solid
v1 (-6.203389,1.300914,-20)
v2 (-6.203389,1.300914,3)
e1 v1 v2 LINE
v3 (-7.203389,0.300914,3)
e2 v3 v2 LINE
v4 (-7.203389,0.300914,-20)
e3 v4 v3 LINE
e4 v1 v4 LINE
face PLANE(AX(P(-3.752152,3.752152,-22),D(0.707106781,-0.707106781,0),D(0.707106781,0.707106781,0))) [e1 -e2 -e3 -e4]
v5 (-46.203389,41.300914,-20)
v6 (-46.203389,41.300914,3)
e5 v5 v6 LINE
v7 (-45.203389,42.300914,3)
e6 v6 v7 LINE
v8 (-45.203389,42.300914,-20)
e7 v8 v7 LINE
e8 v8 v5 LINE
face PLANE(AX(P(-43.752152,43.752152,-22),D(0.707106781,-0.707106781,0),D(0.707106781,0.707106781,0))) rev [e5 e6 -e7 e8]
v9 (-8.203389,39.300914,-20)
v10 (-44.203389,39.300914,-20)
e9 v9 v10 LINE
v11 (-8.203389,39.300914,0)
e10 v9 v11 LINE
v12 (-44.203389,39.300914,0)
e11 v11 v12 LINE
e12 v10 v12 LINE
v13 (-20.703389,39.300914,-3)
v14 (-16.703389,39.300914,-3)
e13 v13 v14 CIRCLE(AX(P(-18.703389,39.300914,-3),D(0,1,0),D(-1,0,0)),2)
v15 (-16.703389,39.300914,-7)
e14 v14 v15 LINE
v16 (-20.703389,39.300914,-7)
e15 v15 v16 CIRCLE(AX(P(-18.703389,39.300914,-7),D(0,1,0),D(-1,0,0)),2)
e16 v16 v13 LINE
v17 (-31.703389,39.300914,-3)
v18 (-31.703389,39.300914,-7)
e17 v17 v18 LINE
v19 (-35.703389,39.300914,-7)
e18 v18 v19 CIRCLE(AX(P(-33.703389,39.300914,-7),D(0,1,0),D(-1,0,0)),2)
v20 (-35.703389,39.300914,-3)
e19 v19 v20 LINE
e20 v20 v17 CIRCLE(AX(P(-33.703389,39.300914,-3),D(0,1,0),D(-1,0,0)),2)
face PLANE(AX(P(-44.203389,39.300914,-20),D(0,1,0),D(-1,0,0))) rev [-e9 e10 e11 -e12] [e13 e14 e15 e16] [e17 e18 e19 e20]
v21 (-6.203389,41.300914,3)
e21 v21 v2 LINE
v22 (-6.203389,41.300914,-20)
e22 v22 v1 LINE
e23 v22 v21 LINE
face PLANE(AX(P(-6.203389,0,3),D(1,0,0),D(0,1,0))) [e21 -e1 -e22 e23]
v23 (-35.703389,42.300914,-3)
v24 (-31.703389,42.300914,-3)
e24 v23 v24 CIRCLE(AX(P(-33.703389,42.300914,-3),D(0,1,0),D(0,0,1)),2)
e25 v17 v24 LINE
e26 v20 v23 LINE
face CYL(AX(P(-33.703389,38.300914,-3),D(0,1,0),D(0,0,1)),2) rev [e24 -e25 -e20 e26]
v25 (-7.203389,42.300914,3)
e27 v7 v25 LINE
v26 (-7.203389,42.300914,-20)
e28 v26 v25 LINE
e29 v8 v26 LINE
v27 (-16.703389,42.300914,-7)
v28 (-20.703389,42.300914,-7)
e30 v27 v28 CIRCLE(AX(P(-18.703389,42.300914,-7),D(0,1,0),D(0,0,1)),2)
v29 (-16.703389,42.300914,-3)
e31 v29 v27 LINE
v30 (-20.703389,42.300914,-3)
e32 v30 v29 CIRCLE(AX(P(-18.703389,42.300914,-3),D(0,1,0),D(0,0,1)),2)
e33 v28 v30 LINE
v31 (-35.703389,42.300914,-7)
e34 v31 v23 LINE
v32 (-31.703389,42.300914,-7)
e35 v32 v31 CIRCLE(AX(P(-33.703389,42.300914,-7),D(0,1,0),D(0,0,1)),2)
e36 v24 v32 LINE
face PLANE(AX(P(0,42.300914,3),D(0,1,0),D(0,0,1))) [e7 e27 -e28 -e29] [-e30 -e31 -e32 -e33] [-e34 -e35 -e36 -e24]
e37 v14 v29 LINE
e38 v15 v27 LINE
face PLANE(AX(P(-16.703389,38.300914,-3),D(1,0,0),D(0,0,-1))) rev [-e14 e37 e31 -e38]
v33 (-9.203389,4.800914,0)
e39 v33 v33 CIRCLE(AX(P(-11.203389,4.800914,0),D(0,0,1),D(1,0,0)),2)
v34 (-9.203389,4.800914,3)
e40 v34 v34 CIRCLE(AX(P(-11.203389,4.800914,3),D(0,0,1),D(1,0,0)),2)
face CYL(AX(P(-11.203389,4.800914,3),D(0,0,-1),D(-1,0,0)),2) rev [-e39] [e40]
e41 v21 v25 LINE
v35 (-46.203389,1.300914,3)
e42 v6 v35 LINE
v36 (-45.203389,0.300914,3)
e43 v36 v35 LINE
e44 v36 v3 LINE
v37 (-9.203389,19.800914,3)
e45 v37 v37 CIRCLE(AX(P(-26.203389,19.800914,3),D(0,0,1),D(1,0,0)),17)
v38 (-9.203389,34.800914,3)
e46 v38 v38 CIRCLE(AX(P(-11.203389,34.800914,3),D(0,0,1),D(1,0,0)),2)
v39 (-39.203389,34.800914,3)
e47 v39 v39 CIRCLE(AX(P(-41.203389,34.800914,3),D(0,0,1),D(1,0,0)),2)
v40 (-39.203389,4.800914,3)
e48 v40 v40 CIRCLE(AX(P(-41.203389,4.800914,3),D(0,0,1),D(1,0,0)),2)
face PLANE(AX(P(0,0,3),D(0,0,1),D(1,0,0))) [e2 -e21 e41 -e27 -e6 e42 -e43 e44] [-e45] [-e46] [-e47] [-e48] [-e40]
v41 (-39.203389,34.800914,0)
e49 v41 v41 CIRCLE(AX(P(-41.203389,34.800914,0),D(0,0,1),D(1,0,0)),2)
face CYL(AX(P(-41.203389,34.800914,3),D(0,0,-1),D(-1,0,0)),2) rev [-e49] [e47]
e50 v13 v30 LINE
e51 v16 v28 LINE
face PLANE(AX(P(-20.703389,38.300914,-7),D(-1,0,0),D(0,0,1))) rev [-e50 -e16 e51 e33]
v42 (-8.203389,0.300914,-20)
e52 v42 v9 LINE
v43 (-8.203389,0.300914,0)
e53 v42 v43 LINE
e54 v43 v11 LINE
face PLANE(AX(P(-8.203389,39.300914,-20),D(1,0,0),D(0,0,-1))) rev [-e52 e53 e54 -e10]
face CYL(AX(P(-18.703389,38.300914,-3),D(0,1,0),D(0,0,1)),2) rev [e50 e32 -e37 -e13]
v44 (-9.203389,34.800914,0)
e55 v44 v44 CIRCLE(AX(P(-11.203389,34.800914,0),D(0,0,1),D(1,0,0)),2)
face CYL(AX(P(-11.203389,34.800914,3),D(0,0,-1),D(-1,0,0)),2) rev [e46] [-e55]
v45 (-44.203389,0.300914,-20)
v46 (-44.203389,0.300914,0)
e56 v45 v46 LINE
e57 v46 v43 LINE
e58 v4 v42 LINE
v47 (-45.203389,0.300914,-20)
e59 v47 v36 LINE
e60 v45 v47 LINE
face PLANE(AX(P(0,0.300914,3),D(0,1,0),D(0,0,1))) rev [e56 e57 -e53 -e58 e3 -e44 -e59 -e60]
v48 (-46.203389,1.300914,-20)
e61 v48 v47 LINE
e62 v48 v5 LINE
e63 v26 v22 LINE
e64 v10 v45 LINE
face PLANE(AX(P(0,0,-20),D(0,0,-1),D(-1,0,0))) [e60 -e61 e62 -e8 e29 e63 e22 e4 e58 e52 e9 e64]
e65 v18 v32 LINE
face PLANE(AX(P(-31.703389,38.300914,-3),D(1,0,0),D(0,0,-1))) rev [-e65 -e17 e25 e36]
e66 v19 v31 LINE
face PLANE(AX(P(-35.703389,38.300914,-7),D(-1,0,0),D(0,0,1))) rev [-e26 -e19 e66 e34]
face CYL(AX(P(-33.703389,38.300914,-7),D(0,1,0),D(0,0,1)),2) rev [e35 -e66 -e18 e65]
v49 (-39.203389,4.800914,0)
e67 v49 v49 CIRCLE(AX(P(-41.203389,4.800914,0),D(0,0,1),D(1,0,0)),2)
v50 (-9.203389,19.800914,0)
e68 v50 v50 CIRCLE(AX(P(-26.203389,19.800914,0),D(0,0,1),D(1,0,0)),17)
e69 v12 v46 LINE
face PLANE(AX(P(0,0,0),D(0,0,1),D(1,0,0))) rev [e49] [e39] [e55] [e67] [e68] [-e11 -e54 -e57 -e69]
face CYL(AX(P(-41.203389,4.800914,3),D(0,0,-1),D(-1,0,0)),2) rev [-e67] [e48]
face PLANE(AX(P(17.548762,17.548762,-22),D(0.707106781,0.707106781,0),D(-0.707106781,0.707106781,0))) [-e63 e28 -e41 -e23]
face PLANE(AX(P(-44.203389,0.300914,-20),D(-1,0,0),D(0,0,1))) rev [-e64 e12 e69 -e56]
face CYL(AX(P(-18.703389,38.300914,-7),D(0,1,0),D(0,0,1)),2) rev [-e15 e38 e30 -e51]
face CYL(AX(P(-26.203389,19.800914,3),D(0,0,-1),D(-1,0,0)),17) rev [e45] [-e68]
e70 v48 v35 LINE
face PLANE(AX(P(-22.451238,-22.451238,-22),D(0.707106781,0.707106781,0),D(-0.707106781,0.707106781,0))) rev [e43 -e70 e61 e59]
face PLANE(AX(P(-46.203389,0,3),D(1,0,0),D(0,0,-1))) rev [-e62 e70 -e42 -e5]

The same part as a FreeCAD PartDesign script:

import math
import FreeCAD as App
import Part
import Sketcher
from FreeCAD import Vector
Q = App.Units.Quantity

doc = App.newDocument("Part")
body = doc.addObject("PartDesign::Body", "Body")

# Sketch on XY plane
sketch1 = body.newObject("Sketcher::SketchObject", "Sketch")
sketch1.AttachmentSupport = (doc.getObject("XY_Plane"), [""])
sketch1.MapMode = "FlatFace"
sketch1.addGeometry([
    Part.LineSegment(Vector(-46.2, 42.3, 0), Vector(-46.2, 0.3, 0)),  # 0
    Part.LineSegment(Vector(-46.2, 0.3, 0), Vector(-6.2, 0.3, 0)),  # 1
    Part.LineSegment(Vector(-6.2, 0.3, 0), Vector(-6.2, 42.3, 0)),  # 2
    Part.LineSegment(Vector(-6.2, 42.3, 0), Vector(-46.2, 42.3, 0)),  # 3
    Part.Circle(Vector(-41.2, 4.8, 0), Vector(0, 0, 1), 2),  # 4
    Part.Circle(Vector(-11.2, 4.8, 0), Vector(0, 0, 1), 2),  # 5
    Part.Circle(Vector(-41.2, 34.8, 0), Vector(0, 0, 1), 2),  # 6
    Part.Circle(Vector(-26.2, 19.8, 0), Vector(0, 0, 1), 17),  # 7
    Part.Circle(Vector(-11.2, 34.8, 0), Vector(0, 0, 1), 2),  # 8
], False)
sketch1.addConstraint([
    Sketcher.Constraint("Coincident", 0, 2, 1, 1),
    Sketcher.Constraint("Coincident", 1, 2, 2, 1),
    Sketcher.Constraint("Coincident", 2, 2, 3, 1),
    Sketcher.Constraint("Coincident", 3, 2, 0, 1),
    Sketcher.Constraint("Vertical", 0),
    Sketcher.Constraint("Horizontal", 1),
    Sketcher.Constraint("Vertical", 2),
    Sketcher.Constraint("Horizontal", 3),
    Sketcher.Constraint("Equal", 4, 5),
    Sketcher.Constraint("Equal", 5, 6),
    Sketcher.Constraint("Equal", 6, 8),
    Sketcher.Constraint("Horizontal", 4, 3, 5, 3),
    Sketcher.Constraint("Horizontal", 6, 3, 8, 3),
    Sketcher.Constraint("Vertical", 4, 3, 6, 3),
    Sketcher.Constraint("Vertical", 5, 3, 8, 3),
    Sketcher.Constraint("Diameter", 4, Q("4 mm")),
    Sketcher.Constraint("Diameter", 7, Q("34 mm")),
    Sketcher.Constraint("DistanceX", 1, 1, 1, 2, Q("40 mm")),
    Sketcher.Constraint("DistanceY", 0, 2, 0, 1, Q("42 mm")),
    Sketcher.Constraint("DistanceX", 4, 3, 5, 3, Q("30 mm")),
    Sketcher.Constraint("DistanceY", 4, 3, 6, 3, Q("30 mm")),
    Sketcher.Constraint("DistanceX", 6, 3, 7, 3, Q("15 mm")),
    Sketcher.Constraint("DistanceY", 7, 3, 6, 3, Q("15 mm")),
    Sketcher.Constraint("DistanceX", 0, 2, 4, 3, Q("5 mm")),
    Sketcher.Constraint("DistanceY", 0, 2, 4, 3, Q("4.5 mm")),
    Sketcher.Constraint("DistanceX", 4, 3, -1, 1, Q("41.203389 mm")),
    Sketcher.Constraint("DistanceY", -1, 1, 4, 3, Q("4.800914 mm")),
])
pad1 = body.newObject("PartDesign::Pad", "Pad")
pad1.Profile = sketch1
pad1.Length = 3

# Sketch on XY plane
sketch2 = body.newObject("Sketcher::SketchObject", "Sketch001")
sketch2.AttachmentSupport = (doc.getObject("XY_Plane"), [""])
sketch2.MapMode = "FlatFace"
sketch2.addGeometry([
    Part.LineSegment(Vector(-46.2, 42.3, 0), Vector(-6.2, 42.3, 0)),  # 0
    Part.LineSegment(Vector(-6.2, 42.3, 0), Vector(-6.2, 0.3, 0)),  # 1
    Part.LineSegment(Vector(-6.2, 0.3, 0), Vector(-8.2, 0.3, 0)),  # 2
    Part.LineSegment(Vector(-8.2, 0.3, 0), Vector(-8.2, 39.3, 0)),  # 3
    Part.LineSegment(Vector(-8.2, 39.3, 0), Vector(-44.2, 39.3, 0)),  # 4
    Part.LineSegment(Vector(-44.2, 39.3, 0), Vector(-44.2, 0.3, 0)),  # 5
    Part.LineSegment(Vector(-44.2, 0.3, 0), Vector(-46.2, 0.3, 0)),  # 6
    Part.LineSegment(Vector(-46.2, 0.3, 0), Vector(-46.2, 42.3, 0)),  # 7
], False)
sketch2.addConstraint([
    Sketcher.Constraint("Coincident", 0, 2, 1, 1),
    Sketcher.Constraint("Coincident", 1, 2, 2, 1),
    Sketcher.Constraint("Coincident", 2, 2, 3, 1),
    Sketcher.Constraint("Coincident", 3, 2, 4, 1),
    Sketcher.Constraint("Coincident", 4, 2, 5, 1),
    Sketcher.Constraint("Coincident", 5, 2, 6, 1),
    Sketcher.Constraint("Coincident", 6, 2, 7, 1),
    Sketcher.Constraint("Coincident", 7, 2, 0, 1),
    Sketcher.Constraint("Horizontal", 0),
    Sketcher.Constraint("Vertical", 1),
    Sketcher.Constraint("Horizontal", 2),
    Sketcher.Constraint("Vertical", 3),
    Sketcher.Constraint("Horizontal", 4),
    Sketcher.Constraint("Vertical", 5),
    Sketcher.Constraint("Horizontal", 6),
    Sketcher.Constraint("Vertical", 7),
    Sketcher.Constraint("Horizontal", 2, 2, 5, 2),
    Sketcher.Constraint("Equal", 2, 6),
    Sketcher.Constraint("DistanceX", 0, 1, 0, 2, Q("40 mm")),
    Sketcher.Constraint("DistanceX", 2, 2, 2, 1, Q("2 mm")),
    Sketcher.Constraint("DistanceY", 1, 2, 1, 1, Q("42 mm")),
    Sketcher.Constraint("DistanceY", 3, 1, 3, 2, Q("39 mm")),
    Sketcher.Constraint("DistanceX", 0, 2, -1, 1, Q("6.203389 mm")),
    Sketcher.Constraint("DistanceY", -1, 1, 0, 2, Q("42.300914 mm")),
])
pad2 = body.newObject("PartDesign::Pad", "Pad001")
pad2.Profile = sketch2
pad2.Length = 20
pad2.Reversed = True

# Sketch on XY plane
sketch3 = body.newObject("Sketcher::SketchObject", "Sketch002")
sketch3.AttachmentSupport = (doc.getObject("XY_Plane"), [""])
sketch3.MapMode = "FlatFace"
sketch3.AttachmentOffset = App.Placement(Vector(0, 0, 3), App.Rotation())
sketch3.addGeometry([
    Part.LineSegment(Vector(-45.2, 42.3, 0), Vector(-46.2, 42.3, 0)),  # 0
    Part.LineSegment(Vector(-46.2, 42.3, 0), Vector(-46.2, 41.3, 0)),  # 1
    Part.LineSegment(Vector(-46.2, 41.3, 0), Vector(-45.2, 42.3, 0)),  # 2
    Part.LineSegment(Vector(-6.2, 42.3, 0), Vector(-7.2, 42.3, 0)),  # 3
    Part.LineSegment(Vector(-7.2, 42.3, 0), Vector(-6.2, 41.3, 0)),  # 4
    Part.LineSegment(Vector(-6.2, 41.3, 0), Vector(-6.2, 42.3, 0)),  # 5
    Part.LineSegment(Vector(-45.2, 0.3, 0), Vector(-46.2, 1.3, 0)),  # 6
    Part.LineSegment(Vector(-46.2, 1.3, 0), Vector(-46.2, 0.3, 0)),  # 7
    Part.LineSegment(Vector(-46.2, 0.3, 0), Vector(-45.2, 0.3, 0)),  # 8
    Part.LineSegment(Vector(-6.2, 0.3, 0), Vector(-6.2, 1.3, 0)),  # 9
    Part.LineSegment(Vector(-6.2, 1.3, 0), Vector(-7.2, 0.3, 0)),  # 10
    Part.LineSegment(Vector(-7.2, 0.3, 0), Vector(-6.2, 0.3, 0)),  # 11
], False)
sketch3.addConstraint([
    Sketcher.Constraint("Coincident", 0, 2, 1, 1),
    Sketcher.Constraint("Coincident", 1, 2, 2, 1),
    Sketcher.Constraint("Coincident", 2, 2, 0, 1),
    Sketcher.Constraint("Coincident", 3, 2, 4, 1),
    Sketcher.Constraint("Coincident", 4, 2, 5, 1),
    Sketcher.Constraint("Coincident", 5, 2, 3, 1),
    Sketcher.Constraint("Coincident", 6, 2, 7, 1),
    Sketcher.Constraint("Coincident", 7, 2, 8, 1),
    Sketcher.Constraint("Coincident", 8, 2, 6, 1),
    Sketcher.Constraint("Coincident", 9, 2, 10, 1),
    Sketcher.Constraint("Coincident", 10, 2, 11, 1),
    Sketcher.Constraint("Coincident", 11, 2, 9, 1),
    Sketcher.Constraint("Horizontal", 0),
    Sketcher.Constraint("Vertical", 1),
    Sketcher.Constraint("Horizontal", 3),
    Sketcher.Constraint("Vertical", 5),
    Sketcher.Constraint("Vertical", 7),
    Sketcher.Constraint("Horizontal", 8),
    Sketcher.Constraint("Vertical", 9),
    Sketcher.Constraint("Horizontal", 11),
    Sketcher.Constraint("Perpendicular", 2, 4),
    Sketcher.Constraint("Parallel", 4, 6),
    Sketcher.Constraint("Perpendicular", 6, 10),
    Sketcher.Constraint("Horizontal", 2, 2, 3, 2),
    Sketcher.Constraint("Horizontal", 1, 2, 4, 2),
    Sketcher.Constraint("Horizontal", 6, 2, 9, 2),
    Sketcher.Constraint("Horizontal", 8, 2, 10, 2),
    Sketcher.Constraint("Vertical", 1, 2, 6, 2),
    Sketcher.Constraint("Vertical", 2, 2, 8, 2),
    Sketcher.Constraint("Vertical", 5, 2, 9, 2),
    Sketcher.Constraint("Vertical", 3, 2, 10, 2),
    Sketcher.Constraint("DistanceX", 0, 2, 0, 1, Q("1 mm")),
    Sketcher.Constraint("DistanceX", 2, 2, 3, 2, Q("38 mm")),
    Sketcher.Constraint("DistanceY", 6, 2, 1, 2, Q("40 mm")),
    Sketcher.Constraint("DistanceX", 0, 2, -1, 1, Q("46.203389 mm")),
    Sketcher.Constraint("DistanceY", -1, 1, 0, 2, Q("42.300914 mm")),
])
pocket1 = body.newObject("PartDesign::Pocket", "Pocket")
pocket1.Profile = sketch3
pocket1.Length = 25

# Sketch on XZ plane
sketch4 = body.newObject("Sketcher::SketchObject", "Sketch003")
sketch4.AttachmentSupport = (doc.getObject("XZ_Plane"), [""])
sketch4.MapMode = "FlatFace"
sketch4.AttachmentOffset = App.Placement(Vector(0, 0, -42.300914), App.Rotation())
sketch4.addGeometry([
    Part.LineSegment(Vector(-35.7, -7, 0), Vector(-35.7, -3, 0)),  # 0
    Part.ArcOfCircle(Part.Circle(Vector(-33.7, -3, 0), Vector(0, 0, 1), 2), math.radians(0), math.radians(180)),  # 1
    Part.LineSegment(Vector(-31.7, -3, 0), Vector(-31.7, -7, 0)),  # 2
    Part.ArcOfCircle(Part.Circle(Vector(-33.7, -7, 0), Vector(0, 0, 1), 2), math.radians(180), math.radians(360)),  # 3
    Part.LineSegment(Vector(-20.7, -7, 0), Vector(-20.7, -3, 0)),  # 4
    Part.ArcOfCircle(Part.Circle(Vector(-18.7, -3, 0), Vector(0, 0, 1), 2), math.radians(0), math.radians(180)),  # 5
    Part.LineSegment(Vector(-16.7, -3, 0), Vector(-16.7, -7, 0)),  # 6
    Part.ArcOfCircle(Part.Circle(Vector(-18.7, -7, 0), Vector(0, 0, 1), 2), math.radians(180), math.radians(360)),  # 7
], False)
sketch4.addConstraint([
    Sketcher.Constraint("Tangent", 0, 2, 1, 2),
    Sketcher.Constraint("Tangent", 1, 1, 2, 1),
    Sketcher.Constraint("Tangent", 2, 2, 3, 2),
    Sketcher.Constraint("Tangent", 3, 1, 0, 1),
    Sketcher.Constraint("Tangent", 4, 2, 5, 2),
    Sketcher.Constraint("Tangent", 5, 1, 6, 1),
    Sketcher.Constraint("Tangent", 6, 2, 7, 2),
    Sketcher.Constraint("Tangent", 7, 1, 4, 1),
    Sketcher.Constraint("Vertical", 0),
    Sketcher.Constraint("Vertical", 2),
    Sketcher.Constraint("Vertical", 4),
    Sketcher.Constraint("Vertical", 6),
    Sketcher.Constraint("Equal", 3, 5),
    Sketcher.Constraint("Horizontal", 1, 3, 5, 3),
    Sketcher.Constraint("Horizontal", 3, 3, 7, 3),
    Sketcher.Constraint("Radius", 1, Q("2 mm")),
    Sketcher.Constraint("DistanceY", 0, 1, 0, 2, Q("4 mm")),
    Sketcher.Constraint("DistanceY", 1, 3, -1, 1, Q("3 mm")),
    Sketcher.Constraint("DistanceX", 1, 3, 5, 3, Q("15 mm")),
    Sketcher.Constraint("DistanceX", 1, 3, -1, 1, Q("33.703389 mm")),
])
pocket2 = body.newObject("PartDesign::Pocket", "Pocket001")
pocket2.Profile = sketch4
pocket2.Length = 4
pocket2.Reversed = True

doc.recompute()
